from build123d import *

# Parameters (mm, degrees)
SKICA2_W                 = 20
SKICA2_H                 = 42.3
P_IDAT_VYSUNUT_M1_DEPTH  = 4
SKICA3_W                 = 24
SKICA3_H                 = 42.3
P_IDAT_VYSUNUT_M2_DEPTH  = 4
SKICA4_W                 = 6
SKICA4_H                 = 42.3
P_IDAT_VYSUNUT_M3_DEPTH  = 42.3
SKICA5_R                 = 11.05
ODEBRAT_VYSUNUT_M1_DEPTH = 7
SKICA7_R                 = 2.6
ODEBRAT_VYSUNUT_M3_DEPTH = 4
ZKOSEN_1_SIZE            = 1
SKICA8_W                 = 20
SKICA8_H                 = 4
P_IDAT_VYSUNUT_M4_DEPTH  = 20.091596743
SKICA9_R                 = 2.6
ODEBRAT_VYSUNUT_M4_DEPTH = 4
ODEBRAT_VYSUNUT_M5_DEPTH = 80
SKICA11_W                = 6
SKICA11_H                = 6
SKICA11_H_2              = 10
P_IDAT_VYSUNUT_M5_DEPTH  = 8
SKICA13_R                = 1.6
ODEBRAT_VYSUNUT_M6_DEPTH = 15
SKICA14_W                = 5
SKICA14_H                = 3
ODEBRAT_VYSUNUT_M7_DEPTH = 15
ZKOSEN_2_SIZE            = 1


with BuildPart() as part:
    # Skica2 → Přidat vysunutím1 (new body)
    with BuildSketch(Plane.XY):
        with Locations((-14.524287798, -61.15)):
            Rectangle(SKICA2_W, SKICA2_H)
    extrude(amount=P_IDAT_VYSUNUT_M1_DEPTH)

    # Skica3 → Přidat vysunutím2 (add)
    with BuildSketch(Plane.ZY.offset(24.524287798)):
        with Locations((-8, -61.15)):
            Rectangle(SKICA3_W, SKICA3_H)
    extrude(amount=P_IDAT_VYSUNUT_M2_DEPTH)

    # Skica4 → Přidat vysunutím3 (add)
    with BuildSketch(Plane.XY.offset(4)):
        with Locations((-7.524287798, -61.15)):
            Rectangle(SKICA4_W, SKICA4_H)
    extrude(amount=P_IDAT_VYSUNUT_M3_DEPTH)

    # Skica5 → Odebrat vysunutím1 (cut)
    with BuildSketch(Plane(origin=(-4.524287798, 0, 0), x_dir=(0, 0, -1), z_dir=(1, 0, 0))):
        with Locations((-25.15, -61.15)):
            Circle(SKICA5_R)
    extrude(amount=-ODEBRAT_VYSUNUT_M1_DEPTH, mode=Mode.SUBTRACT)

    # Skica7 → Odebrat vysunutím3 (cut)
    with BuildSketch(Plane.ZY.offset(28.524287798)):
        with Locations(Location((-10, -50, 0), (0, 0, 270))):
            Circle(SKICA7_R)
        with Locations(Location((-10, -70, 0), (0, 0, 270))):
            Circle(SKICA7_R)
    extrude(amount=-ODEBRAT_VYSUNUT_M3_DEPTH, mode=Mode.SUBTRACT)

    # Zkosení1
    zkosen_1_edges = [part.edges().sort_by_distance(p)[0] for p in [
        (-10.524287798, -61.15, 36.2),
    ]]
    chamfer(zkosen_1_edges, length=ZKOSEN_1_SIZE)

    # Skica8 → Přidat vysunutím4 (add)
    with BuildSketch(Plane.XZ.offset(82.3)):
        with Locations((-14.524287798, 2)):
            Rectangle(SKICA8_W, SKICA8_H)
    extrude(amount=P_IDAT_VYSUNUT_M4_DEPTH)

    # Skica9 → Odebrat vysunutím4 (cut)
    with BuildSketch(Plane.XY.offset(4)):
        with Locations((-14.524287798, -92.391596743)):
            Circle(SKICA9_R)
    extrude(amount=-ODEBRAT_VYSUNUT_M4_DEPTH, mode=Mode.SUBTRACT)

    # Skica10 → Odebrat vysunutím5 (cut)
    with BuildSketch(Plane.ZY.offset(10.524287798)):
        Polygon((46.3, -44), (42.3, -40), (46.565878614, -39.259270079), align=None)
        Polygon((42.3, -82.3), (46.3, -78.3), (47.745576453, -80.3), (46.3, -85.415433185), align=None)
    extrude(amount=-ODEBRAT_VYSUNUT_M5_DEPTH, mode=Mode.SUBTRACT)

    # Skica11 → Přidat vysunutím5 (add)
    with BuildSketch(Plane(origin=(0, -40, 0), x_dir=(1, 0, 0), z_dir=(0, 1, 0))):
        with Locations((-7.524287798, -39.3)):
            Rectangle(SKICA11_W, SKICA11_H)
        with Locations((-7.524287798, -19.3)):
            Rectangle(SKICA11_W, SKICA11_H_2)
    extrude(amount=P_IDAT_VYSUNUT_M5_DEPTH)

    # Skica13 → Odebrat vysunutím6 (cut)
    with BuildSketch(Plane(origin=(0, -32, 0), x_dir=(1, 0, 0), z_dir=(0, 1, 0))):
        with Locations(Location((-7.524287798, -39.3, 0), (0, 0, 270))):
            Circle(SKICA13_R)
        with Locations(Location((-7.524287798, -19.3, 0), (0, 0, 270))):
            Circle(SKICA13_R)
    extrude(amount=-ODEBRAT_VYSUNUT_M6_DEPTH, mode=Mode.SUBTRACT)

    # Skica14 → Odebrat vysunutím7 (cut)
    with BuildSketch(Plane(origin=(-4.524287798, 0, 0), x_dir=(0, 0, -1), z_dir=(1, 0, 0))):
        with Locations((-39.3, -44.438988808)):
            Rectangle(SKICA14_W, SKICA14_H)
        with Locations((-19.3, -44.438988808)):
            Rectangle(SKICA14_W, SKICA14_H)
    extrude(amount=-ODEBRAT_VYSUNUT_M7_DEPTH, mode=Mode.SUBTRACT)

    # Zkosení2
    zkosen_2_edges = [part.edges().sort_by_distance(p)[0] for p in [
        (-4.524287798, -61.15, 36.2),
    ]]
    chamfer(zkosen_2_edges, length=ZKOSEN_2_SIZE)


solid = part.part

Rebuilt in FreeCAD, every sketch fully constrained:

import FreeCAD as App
import Part
import Sketcher

V = App.Vector
Q = App.Units.Quantity


def edges_at(feature, points):
    """Names of the edges that pass closest to the given points."""
    edges = feature.Shape.Edges
    near = lambda p: min(range(len(edges)), key=lambda i: edges[i].distToShape(Part.Vertex(*p))[0])
    return sorted({f"Edge{near(p) + 1}" for p in points})

doc = App.newDocument("Part")
body = doc.addObject("PartDesign::Body", "Body")

sketch1 = body.newObject("Sketcher::SketchObject", "Sketch")
sketch1.AttachmentSupport = (doc.getObject("XY_Plane"), [""])
sketch1.MapMode = "FlatFace"
sketch1.addGeometry([
    Part.LineSegment(V(-25, -40, 0), V(-25, -82, 0)),
    Part.LineSegment(V(-25, -82, 0), V(-5, -82, 0)),
    Part.LineSegment(V(-5, -82, 0), V(-5, -40, 0)),
    Part.LineSegment(V(-5, -40, 0), V(-25, -40, 0)),
], False)
sketch1.addConstraint([
    Sketcher.Constraint("Coincident", 0, 2, 1, 1),
    Sketcher.Constraint("Coincident", 1, 2, 2, 1),
    Sketcher.Constraint("Coincident", 2, 2, 3, 1),
    Sketcher.Constraint("Coincident", 3, 2, 0, 1),
    Sketcher.Constraint("Vertical", 0),
    Sketcher.Constraint("Horizontal", 1),
    Sketcher.Constraint("Vertical", 2),
    Sketcher.Constraint("Horizontal", 3),
    Sketcher.Constraint("DistanceX", 1, 1, 1, 2, Q("20 mm")),
    Sketcher.Constraint("DistanceY", 0, 2, 0, 1, Q("42.3 mm")),
    Sketcher.Constraint("DistanceY", 2, 2, -1, 1, Q("40 mm")),
    Sketcher.Constraint("DistanceX", 0, 2, -1, 1, Q("24.524288 mm")),
])
pad1 = body.newObject("PartDesign::Pad", "Pad")
pad1.Profile = sketch1
pad1.Length = 4

sketch2 = body.newObject("Sketcher::SketchObject", "Sketch001")
sketch2.AttachmentSupport = (doc.getObject("YZ_Plane"), [""])
sketch2.MapMode = "FlatFace"
sketch2.AttachmentOffset = App.Placement(V(0, 0, -24.524288), App.Rotation())
sketch2.addGeometry([
    Part.LineSegment(V(-40, -20, 0), V(-82, -20, 0)),
    Part.LineSegment(V(-82, -20, 0), V(-82, 4, 0)),
    Part.LineSegment(V(-82, 4, 0), V(-40, 4, 0)),
    Part.LineSegment(V(-40, 4, 0), V(-40, -20, 0)),
], False)
sketch2.addConstraint([
    Sketcher.Constraint("Coincident", 0, 2, 1, 1),
    Sketcher.Constraint("Coincident", 1, 2, 2, 1),
    Sketcher.Constraint("Coincident", 2, 2, 3, 1),
    Sketcher.Constraint("Coincident", 3, 2, 0, 1),
    Sketcher.Constraint("Horizontal", 0),
    Sketcher.Constraint("Vertical", 1),
    Sketcher.Constraint("Horizontal", 2),
    Sketcher.Constraint("Vertical", 3),
    Sketcher.Constraint("DistanceY", 1, 1, 1, 2, Q("24 mm")),
    Sketcher.Constraint("DistanceX", 0, 2, 0, 1, Q("42.3 mm")),
    Sketcher.Constraint("DistanceY", 0, 2, -1, 1, Q("20 mm")),
    Sketcher.Constraint("DistanceX", 2, 2, -1, 1, Q("40 mm")),
])
pad2 = body.newObject("PartDesign::Pad", "Pad001")
pad2.Profile = sketch2
pad2.Length = 4
pad2.Reversed = True

sketch3 = body.newObject("Sketcher::SketchObject", "Sketch002")
sketch3.AttachmentSupport = (doc.getObject("XY_Plane"), [""])
sketch3.MapMode = "FlatFace"
sketch3.AttachmentOffset = App.Placement(V(0, 0, 4), App.Rotation())
sketch3.addGeometry([
    Part.LineSegment(V(-11, -40, 0), V(-11, -82, 0)),
    Part.LineSegment(V(-11, -82, 0), V(-5, -82, 0)),
    Part.LineSegment(V(-5, -82, 0), V(-5, -40, 0)),
    Part.LineSegment(V(-5, -40, 0), V(-11, -40, 0)),
], False)
sketch3.addConstraint([
    Sketcher.Constraint("Coincident", 0, 2, 1, 1),
    Sketcher.Constraint("Coincident", 1, 2, 2, 1),
    Sketcher.Constraint("Coincident", 2, 2, 3, 1),
    Sketcher.Constraint("Coincident", 3, 2, 0, 1),
    Sketcher.Constraint("Vertical", 0),
    Sketcher.Constraint("Horizontal", 1),
    Sketcher.Constraint("Vertical", 2),
    Sketcher.Constraint("Horizontal", 3),
    Sketcher.Constraint("DistanceX", 1, 1, 1, 2, Q("6 mm")),
    Sketcher.Constraint("DistanceY", 0, 2, 0, 1, Q("42.3 mm")),
    Sketcher.Constraint("DistanceY", 2, 2, -1, 1, Q("40 mm")),
    Sketcher.Constraint("DistanceX", 0, 2, -1, 1, Q("10.524288 mm")),
])
pad3 = body.newObject("PartDesign::Pad", "Pad002")
pad3.Profile = sketch3
pad3.Length = 42.3

sketch4 = body.newObject("Sketcher::SketchObject", "Sketch003")
sketch4.AttachmentSupport = (doc.getObject("YZ_Plane"), [""])
sketch4.MapMode = "FlatFace"
sketch4.AttachmentOffset = App.Placement(V(0, 0, -4.524288), App.Rotation())
sketch4.addGeometry(Part.Circle(V(-61, 25, 0), V(0, 0, 1), 11), False)
sketch4.addConstraint([
    Sketcher.Constraint("Diameter", 0, Q("22.1 mm")),
    Sketcher.Constraint("DistanceX", 0, 3, -1, 1, Q("61.15 mm")),
    Sketcher.Constraint("DistanceY", -1, 1, 0, 3, Q("25.15 mm")),
])
pocket1 = body.newObject("PartDesign::Pocket", "Pocket")
pocket1.Profile = sketch4
pocket1.Length = 7

sketch5 = body.newObject("Sketcher::SketchObject", "Sketch004")
sketch5.AttachmentSupport = (doc.getObject("YZ_Plane"), [""])
sketch5.MapMode = "FlatFace"
sketch5.AttachmentOffset = App.Placement(V(0, 0, -28.524288), App.Rotation())
sketch5.addGeometry([
    Part.Circle(V(-50, -10, 0), V(0, 0, 1), 2.6),
    Part.Circle(V(-70, -10, 0), V(0, 0, 1), 2.6),
], False)
sketch5.addConstraint([
    Sketcher.Constraint("Equal", 0, 1),
    Sketcher.Constraint("Horizontal", 0, 3, 1, 3),
    Sketcher.Constraint("Diameter", 0, Q("5.2 mm")),
    Sketcher.Constraint("DistanceX", 0, 3, -1, 1, Q("50 mm")),
    Sketcher.Constraint("DistanceY", 0, 3, -1, 1, Q("10 mm")),
    Sketcher.Constraint("DistanceX", 1, 3, -1, 1, Q("70 mm")),
])
pocket2 = body.newObject("PartDesign::Pocket", "Pocket001")
pocket2.Profile = sketch5
pocket2.Length = 4
pocket2.Reversed = True
doc.recompute()

chamfer = body.newObject("PartDesign::Chamfer", "Chamfer")
chamfer.Base = (pocket2, edges_at(pocket2, [(-10.524, -61.15, 36.2)]))
chamfer.Size = 1

sketch6 = body.newObject("Sketcher::SketchObject", "Sketch005")
sketch6.AttachmentSupport = (doc.getObject("XZ_Plane"), [""])
sketch6.MapMode = "FlatFace"
sketch6.AttachmentOffset = App.Placement(V(0, 0, 82.3), App.Rotation())
sketch6.addGeometry([
    Part.LineSegment(V(-24.5, 4, 0), V(-24.5, 0, 0)),
    Part.LineSegment(V(-24.5, 0, 0), V(-4.5, 0, 0)),
    Part.LineSegment(V(-4.5, 0, 0), V(-4.5, 4, 0)),
    Part.LineSegment(V(-4.5, 4, 0), V(-24.5, 4, 0)),
], False)
sketch6.addConstraint([
    Sketcher.Constraint("Coincident", 0, 2, 1, 1),
    Sketcher.Constraint("Coincident", 1, 2, 2, 1),
    Sketcher.Constraint("Coincident", 2, 2, 3, 1),
    Sketcher.Constraint("Coincident", 3, 2, 0, 1),
    Sketcher.Constraint("Vertical", 0),
    Sketcher.Constraint("Horizontal", 1),
    Sketcher.Constraint("Vertical", 2),
    Sketcher.Constraint("Horizontal", 3),
    Sketcher.Constraint("PointOnObject", 0, 2, -1),
    Sketcher.Constraint("DistanceX", 1, 1, 1, 2, Q("20 mm")),
    Sketcher.Constraint("DistanceY", 0, 2, 0, 1, Q("4 mm")),
    Sketcher.Constraint("DistanceX", 0, 2, -1, 1, Q("24.524288 mm")),
])
pad4 = body.newObject("PartDesign::Pad", "Pad003")
pad4.Profile = sketch6
pad4.Length = 20.091597

sketch7 = body.newObject("Sketcher::SketchObject", "Sketch006")
sketch7.AttachmentSupport = (doc.getObject("XY_Plane"), [""])
sketch7.MapMode = "FlatFace"
sketch7.AttachmentOffset = App.Placement(V(0, 0, 4), App.Rotation())
sketch7.addGeometry(Part.Circle(V(-14.5, -92.4, 0), V(0, 0, 1), 2.6), False)
sketch7.addConstraint([
    Sketcher.Constraint("Diameter", 0, Q("5.2 mm")),
    Sketcher.Constraint("DistanceX", 0, 3, -1, 1, Q("14.524288 mm")),
    Sketcher.Constraint("DistanceY", 0, 3, -1, 1, Q("92.391597 mm")),
])
pocket3 = body.newObject("PartDesign::Pocket", "Pocket002")
pocket3.Profile = sketch7
pocket3.Length = 4

sketch8 = body.newObject("Sketcher::SketchObject", "Sketch007")
sketch8.AttachmentSupport = (doc.getObject("YZ_Plane"), [""])
sketch8.MapMode = "FlatFace"
sketch8.AttachmentOffset = App.Placement(V(0, 0, -10.524288), App.Rotation())
sketch8.addGeometry([
    Part.LineSegment(V(-40, 42.3, 0), V(-44, 46.3, 0)),
    Part.LineSegment(V(-44, 46.3, 0), V(-39.3, 46.6, 0)),
    Part.LineSegment(V(-39.3, 46.6, 0), V(-40, 42.3, 0)),
    Part.LineSegment(V(-78.3, 46.3, 0), V(-82.3, 42.3, 0)),
    Part.LineSegment(V(-82.3, 42.3, 0), V(-85.4, 46.3, 0)),
    Part.LineSegment(V(-85.4, 46.3, 0), V(-80.3, 47.7, 0)),
    Part.LineSegment(V(-80.3, 47.7, 0), V(-78.3, 46.3, 0)),
], False)
sketch8.addConstraint([
    Sketcher.Constraint("Coincident", 0, 2, 1, 1),
    Sketcher.Constraint("Coincident", 1, 2, 2, 1),
    Sketcher.Constraint("Coincident", 2, 2, 0, 1),
    Sketcher.Constraint("Coincident", 3, 2, 4, 1),
    Sketcher.Constraint("Coincident", 4, 2, 5, 1),
    Sketcher.Constraint("Coincident", 5, 2, 6, 1),
    Sketcher.Constraint("Coincident", 6, 2, 3, 1),
    Sketcher.Constraint("Perpendicular", 0, 3),
    Sketcher.Constraint("Horizontal", 2, 2, 3, 2),
    Sketcher.Constraint("Horizontal", 0, 2, 4, 2),
    Sketcher.Constraint("Horizontal", 4, 2, 6, 2),
    Sketcher.Constraint("Equal", 0, 3),
    Sketcher.Constraint("DistanceX", 0, 2, -1, 1, Q("44 mm")),
    Sketcher.Constraint("DistanceX", 2, 2, -1, 1, Q("40 mm")),
    Sketcher.Constraint("DistanceX", 3, 2, 5, 2, Q("2 mm")),
    Sketcher.Constraint("DistanceY", -1, 1, 0, 2, Q("46.3 mm")),
    Sketcher.Constraint("DistanceX", 3, 2, -1, 1, Q("82.3 mm")),
    Sketcher.Constraint("Angle", 1, Q("3.210008 deg")),
    Sketcher.Constraint("Distance", 4, Q("5.070101 mm")),
    Sketcher.Constraint("Distance", 1, Q("4.74818 mm")),
    Sketcher.Constraint("Distance", 6, Q("2.46773 mm")),
])
pocket4 = body.newObject("PartDesign::Pocket", "Pocket003")
pocket4.Profile = sketch8
pocket4.Length = 80
pocket4.Reversed = True

sketch9 = body.newObject("Sketcher::SketchObject", "Sketch008")
sketch9.AttachmentSupport = (doc.getObject("XZ_Plane"), [""])
sketch9.MapMode = "FlatFace"
sketch9.AttachmentOffset = App.Placement(V(0, 0, 40), App.Rotation())
sketch9.addGeometry([
    Part.LineSegment(V(-11, 36, 0), V(-11, 42, 0)),
    Part.LineSegment(V(-11, 42, 0), V(-5, 42, 0)),
    Part.LineSegment(V(-5, 42, 0), V(-5, 36, 0)),
    Part.LineSegment(V(-5, 36, 0), V(-11, 36, 0)),
    Part.LineSegment(V(-11, 14, 0), V(-11, 24, 0)),
    Part.LineSegment(V(-11, 24, 0), V(-5, 24, 0)),
    Part.LineSegment(V(-5, 24, 0), V(-5, 14, 0)),
    Part.LineSegment(V(-5, 14, 0), V(-11, 14, 0)),
], False)
sketch9.addConstraint([
    Sketcher.Constraint("Coincident", 0, 2, 1, 1),
    Sketcher.Constraint("Coincident", 1, 2, 2, 1),
    Sketcher.Constraint("Coincident", 2, 2, 3, 1),
    Sketcher.Constraint("Coincident", 3, 2, 0, 1),
    Sketcher.Constraint("Coincident", 4, 2, 5, 1),
    Sketcher.Constraint("Coincident", 5, 2, 6, 1),
    Sketcher.Constraint("Coincident", 6, 2, 7, 1),
    Sketcher.Constraint("Coincident", 7, 2, 4, 1),
    Sketcher.Constraint("Vertical", 0),
    Sketcher.Constraint("Horizontal", 1),
    Sketcher.Constraint("Vertical", 2),
    Sketcher.Constraint("Horizontal", 3),
    Sketcher.Constraint("Vertical", 4),
    Sketcher.Constraint("Horizontal", 5),
    Sketcher.Constraint("Vertical", 6),
    Sketcher.Constraint("Horizontal", 7),
    Sketcher.Constraint("Vertical", 3, 2, 4, 2),
    Sketcher.Constraint("Vertical", 2, 2, 5, 2),
    Sketcher.Constraint("Equal", 7, 0),
    Sketcher.Constraint("DistanceX", 1, 1, 1, 2, Q("6 mm")),
    Sketcher.Constraint("DistanceY", 4, 1, 4, 2, Q("10 mm")),
    Sketcher.Constraint("DistanceY", 4, 2, 3, 2, Q("12 mm")),
    Sketcher.Constraint("DistanceY", -1, 1, 0, 2, Q("42.3 mm")),
    Sketcher.Constraint("DistanceX", 0, 2, -1, 1, Q("10.524288 mm")),
])
pad5 = body.newObject("PartDesign::Pad", "Pad004")
pad5.Profile = sketch9
pad5.Length = 8
pad5.Reversed = True

sketch10 = body.newObject("Sketcher::SketchObject", "Sketch009")
sketch10.AttachmentSupport = (doc.getObject("XZ_Plane"), [""])
sketch10.MapMode = "FlatFace"
sketch10.AttachmentOffset = App.Placement(V(0, 0, 32), App.Rotation())
sketch10.addGeometry([
    Part.Circle(V(-7.5, 39.3, 0), V(0, 0, 1), 1.6),
    Part.Circle(V(-7.5, 19.3, 0), V(0, 0, 1), 1.6),
], False)
sketch10.addConstraint([
    Sketcher.Constraint("Equal", 0, 1),
    Sketcher.Constraint("Vertical", 0, 3, 1, 3),
    Sketcher.Constraint("Diameter", 0, Q("3.2 mm")),
    Sketcher.Constraint("DistanceY", 1, 3, 0, 3, Q("20 mm")),
    Sketcher.Constraint("DistanceY", -1, 1, 0, 3, Q("39.3 mm")),
    Sketcher.Constraint("DistanceX", 0, 3, -1, 1, Q("7.524288 mm")),
])
pocket5 = body.newObject("PartDesign::Pocket", "Pocket004")
pocket5.Profile = sketch10
pocket5.Length = 15
pocket5.Reversed = True

sketch11 = body.newObject("Sketcher::SketchObject", "Sketch010")
sketch11.AttachmentSupport = (doc.getObject("YZ_Plane"), [""])
sketch11.MapMode = "FlatFace"
sketch11.AttachmentOffset = App.Placement(V(0, 0, -4.524288), App.Rotation())
sketch11.addGeometry([
    Part.LineSegment(V(-42.9, 41.8, 0), V(-45.9, 41.8, 0)),
    Part.LineSegment(V(-45.9, 41.8, 0), V(-45.9, 36.8, 0)),
    Part.LineSegment(V(-45.9, 36.8, 0), V(-42.9, 36.8, 0)),
    Part.LineSegment(V(-42.9, 36.8, 0), V(-42.9, 41.8, 0)),
    Part.LineSegment(V(-42.9, 21.8, 0), V(-45.9, 21.8, 0)),
    Part.LineSegment(V(-45.9, 21.8, 0), V(-45.9, 16.8, 0)),
    Part.LineSegment(V(-45.9, 16.8, 0), V(-42.9, 16.8, 0)),
    Part.LineSegment(V(-42.9, 16.8, 0), V(-42.9, 21.8, 0)),
], False)
sketch11.addConstraint([
    Sketcher.Constraint("Coincident", 0, 2, 1, 1),
    Sketcher.Constraint("Coincident", 1, 2, 2, 1),
    Sketcher.Constraint("Coincident", 2, 2, 3, 1),
    Sketcher.Constraint("Coincident", 3, 2, 0, 1),
    Sketcher.Constraint("Coincident", 4, 2, 5, 1),
    Sketcher.Constraint("Coincident", 5, 2, 6, 1),
    Sketcher.Constraint("Coincident", 6, 2, 7, 1),
    Sketcher.Constraint("Coincident", 7, 2, 4, 1),
    Sketcher.Constraint("Horizontal", 0),
    Sketcher.Constraint("Vertical", 1),
    Sketcher.Constraint("Horizontal", 2),
    Sketcher.Constraint("Vertical", 3),
    Sketcher.Constraint("Horizontal", 4),
    Sketcher.Constraint("Vertical", 5),
    Sketcher.Constraint("Horizontal", 6),
    Sketcher.Constraint("Vertical", 7),
    Sketcher.Constraint("Vertical", 1, 2, 4, 2),
    Sketcher.Constraint("Vertical", 3, 2, 6, 2),
    Sketcher.Constraint("Equal", 3, 5),
    Sketcher.Constraint("DistanceX", 0, 2, 0, 1, Q("3 mm")),
    Sketcher.Constraint("DistanceY", 1, 2, 1, 1, Q("5 mm")),
    Sketcher.Constraint("DistanceY", 4, 2, 1, 2, Q("15 mm")),
    Sketcher.Constraint("DistanceY", -1, 1, 0, 2, Q("41.8 mm")),
    Sketcher.Constraint("DistanceX", 0, 2, -1, 1, Q("45.938989 mm")),
])
pocket6 = body.newObject("PartDesign::Pocket", "Pocket005")
pocket6.Profile = sketch11
pocket6.Length = 15
doc.recompute()

chamfer2 = body.newObject("PartDesign::Chamfer", "Chamfer001")
chamfer2.Base = (pocket6, edges_at(pocket6, [(-4.524, -61.15, 36.2)]))
chamfer2.Size = 1

doc.recompute()
